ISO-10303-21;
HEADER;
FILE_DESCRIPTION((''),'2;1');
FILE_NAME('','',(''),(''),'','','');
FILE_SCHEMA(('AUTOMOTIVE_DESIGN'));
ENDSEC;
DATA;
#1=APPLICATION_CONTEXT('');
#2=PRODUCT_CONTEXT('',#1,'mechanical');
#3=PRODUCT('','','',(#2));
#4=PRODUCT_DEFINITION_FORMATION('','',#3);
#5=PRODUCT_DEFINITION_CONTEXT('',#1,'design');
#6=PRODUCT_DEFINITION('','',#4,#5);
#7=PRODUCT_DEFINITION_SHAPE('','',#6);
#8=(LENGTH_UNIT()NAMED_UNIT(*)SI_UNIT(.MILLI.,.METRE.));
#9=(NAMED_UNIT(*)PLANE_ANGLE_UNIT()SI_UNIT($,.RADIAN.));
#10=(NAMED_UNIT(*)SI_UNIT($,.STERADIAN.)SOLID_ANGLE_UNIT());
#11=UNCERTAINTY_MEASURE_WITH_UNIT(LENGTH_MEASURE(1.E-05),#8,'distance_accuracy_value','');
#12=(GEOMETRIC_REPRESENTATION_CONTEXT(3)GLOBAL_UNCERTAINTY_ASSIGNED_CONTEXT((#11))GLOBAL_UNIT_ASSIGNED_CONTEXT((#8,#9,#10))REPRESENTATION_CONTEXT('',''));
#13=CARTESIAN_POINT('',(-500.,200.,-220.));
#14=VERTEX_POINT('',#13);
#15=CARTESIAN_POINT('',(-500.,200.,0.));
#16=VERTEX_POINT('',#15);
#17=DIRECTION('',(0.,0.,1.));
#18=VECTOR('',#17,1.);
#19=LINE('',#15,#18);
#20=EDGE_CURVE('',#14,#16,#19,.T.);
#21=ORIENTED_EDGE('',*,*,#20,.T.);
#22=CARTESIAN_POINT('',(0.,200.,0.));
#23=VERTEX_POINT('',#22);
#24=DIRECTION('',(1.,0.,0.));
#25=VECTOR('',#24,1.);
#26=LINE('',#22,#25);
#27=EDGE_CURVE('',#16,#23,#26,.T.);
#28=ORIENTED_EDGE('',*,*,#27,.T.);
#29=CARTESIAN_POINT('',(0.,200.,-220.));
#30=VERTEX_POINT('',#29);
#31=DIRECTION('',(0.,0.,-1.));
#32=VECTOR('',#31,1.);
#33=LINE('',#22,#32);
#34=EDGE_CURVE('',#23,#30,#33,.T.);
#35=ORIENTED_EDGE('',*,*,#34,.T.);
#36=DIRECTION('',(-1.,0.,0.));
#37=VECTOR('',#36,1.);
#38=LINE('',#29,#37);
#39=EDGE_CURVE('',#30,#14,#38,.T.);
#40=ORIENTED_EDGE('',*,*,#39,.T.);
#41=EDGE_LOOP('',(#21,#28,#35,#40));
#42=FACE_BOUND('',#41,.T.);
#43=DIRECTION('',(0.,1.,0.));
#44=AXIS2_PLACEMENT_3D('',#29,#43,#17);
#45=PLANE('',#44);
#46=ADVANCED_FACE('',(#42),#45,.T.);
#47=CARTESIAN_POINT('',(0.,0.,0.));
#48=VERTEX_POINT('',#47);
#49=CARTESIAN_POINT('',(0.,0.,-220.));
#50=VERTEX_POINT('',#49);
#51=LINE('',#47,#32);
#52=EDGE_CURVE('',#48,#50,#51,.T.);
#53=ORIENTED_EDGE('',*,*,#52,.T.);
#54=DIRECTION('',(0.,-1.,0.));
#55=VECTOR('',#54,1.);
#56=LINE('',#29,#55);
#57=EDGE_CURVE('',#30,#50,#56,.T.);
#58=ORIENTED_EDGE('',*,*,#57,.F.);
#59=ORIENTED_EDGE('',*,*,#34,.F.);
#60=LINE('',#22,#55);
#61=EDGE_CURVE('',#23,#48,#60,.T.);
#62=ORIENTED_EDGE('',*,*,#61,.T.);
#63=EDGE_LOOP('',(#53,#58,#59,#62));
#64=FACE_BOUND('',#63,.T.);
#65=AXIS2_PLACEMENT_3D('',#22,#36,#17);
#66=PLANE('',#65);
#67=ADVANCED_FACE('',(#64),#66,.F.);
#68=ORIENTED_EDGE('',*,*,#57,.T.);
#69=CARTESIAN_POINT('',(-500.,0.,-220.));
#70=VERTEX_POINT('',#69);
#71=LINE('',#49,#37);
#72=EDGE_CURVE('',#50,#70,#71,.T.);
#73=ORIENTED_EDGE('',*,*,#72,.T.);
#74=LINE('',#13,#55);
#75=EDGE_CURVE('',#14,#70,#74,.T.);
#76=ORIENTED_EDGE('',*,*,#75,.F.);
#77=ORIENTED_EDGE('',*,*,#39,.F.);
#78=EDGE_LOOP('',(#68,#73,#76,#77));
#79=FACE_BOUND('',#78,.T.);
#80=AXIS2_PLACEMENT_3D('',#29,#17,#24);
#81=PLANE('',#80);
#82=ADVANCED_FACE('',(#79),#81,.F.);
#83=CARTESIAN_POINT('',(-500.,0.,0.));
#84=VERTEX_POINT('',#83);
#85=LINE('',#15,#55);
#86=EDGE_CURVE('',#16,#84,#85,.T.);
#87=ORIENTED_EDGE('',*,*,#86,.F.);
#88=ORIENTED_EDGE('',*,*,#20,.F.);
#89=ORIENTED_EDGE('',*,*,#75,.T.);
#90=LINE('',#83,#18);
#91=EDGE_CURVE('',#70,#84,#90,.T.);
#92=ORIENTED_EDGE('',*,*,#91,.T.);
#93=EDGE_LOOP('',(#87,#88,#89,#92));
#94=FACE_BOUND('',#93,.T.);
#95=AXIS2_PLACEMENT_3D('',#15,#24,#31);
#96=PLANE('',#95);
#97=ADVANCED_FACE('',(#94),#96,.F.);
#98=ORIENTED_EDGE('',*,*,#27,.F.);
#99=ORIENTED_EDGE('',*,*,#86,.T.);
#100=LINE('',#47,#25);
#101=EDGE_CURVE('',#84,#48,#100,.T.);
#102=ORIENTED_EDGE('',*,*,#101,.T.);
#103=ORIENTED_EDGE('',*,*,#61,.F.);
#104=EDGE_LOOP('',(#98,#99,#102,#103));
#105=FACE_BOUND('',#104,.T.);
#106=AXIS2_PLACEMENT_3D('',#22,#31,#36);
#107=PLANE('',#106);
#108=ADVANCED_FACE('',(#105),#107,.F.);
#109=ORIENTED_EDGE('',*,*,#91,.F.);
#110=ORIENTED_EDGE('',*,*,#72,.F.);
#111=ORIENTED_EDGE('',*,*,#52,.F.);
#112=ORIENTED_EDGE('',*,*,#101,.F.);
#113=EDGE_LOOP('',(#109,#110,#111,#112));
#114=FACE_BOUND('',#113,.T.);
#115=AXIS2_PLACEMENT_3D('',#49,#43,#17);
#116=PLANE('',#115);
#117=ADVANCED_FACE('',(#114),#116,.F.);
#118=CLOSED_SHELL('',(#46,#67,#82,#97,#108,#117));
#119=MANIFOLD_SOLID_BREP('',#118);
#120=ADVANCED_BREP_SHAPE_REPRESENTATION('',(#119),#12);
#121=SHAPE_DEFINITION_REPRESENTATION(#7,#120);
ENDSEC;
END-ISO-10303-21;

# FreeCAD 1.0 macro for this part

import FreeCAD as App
import Part
import Sketcher
from FreeCAD import Vector
Q = App.Units.Quantity


def add_polygon(sketch, points):
    """Adds a closed chain of lines whose ends are joined by coincident constraints."""
    first, n = sketch.GeometryCount, len(points)
    for a, b in zip(points, points[1:] + points[:1]):
        sketch.addGeometry(Part.LineSegment(App.Vector(*a, 0), App.Vector(*b, 0)), False)
    for i in range(n):
        sketch.addConstraint(Sketcher.Constraint("Coincident", first + i, 2, first + (i + 1) % n, 1))

doc = App.newDocument("Part")
body = doc.addObject("PartDesign::Body", "Body")

sketch1 = body.newObject("Sketcher::SketchObject", "Sketch")
sketch1.AttachmentSupport = (doc.getObject("XZ_Plane"), [""])
sketch1.MapMode = "FlatFace"
add_polygon(sketch1, [(-500, -220), (-500, 0), (0, 0), (0, -220)])
sketch1.addConstraint(Sketcher.Constraint("Vertical", 0))
sketch1.addConstraint(Sketcher.Constraint("Horizontal", 1))
sketch1.addConstraint(Sketcher.Constraint("Vertical", 2))
sketch1.addConstraint(Sketcher.Constraint("Horizontal", 3))
sketch1.addConstraint(Sketcher.Constraint("Coincident", 1, 2, -1, 1))
sketch1.addConstraint(Sketcher.Constraint("DistanceX", 1, 1, 1, 2, Q("500 mm")))
sketch1.addConstraint(Sketcher.Constraint("DistanceY", 0, 1, 0, 2, Q("220 mm")))
pad1 = body.newObject("PartDesign::Pad", "Pad")
pad1.Profile = sketch1
pad1.Length = 200
pad1.Reversed = True

doc.recompute()
